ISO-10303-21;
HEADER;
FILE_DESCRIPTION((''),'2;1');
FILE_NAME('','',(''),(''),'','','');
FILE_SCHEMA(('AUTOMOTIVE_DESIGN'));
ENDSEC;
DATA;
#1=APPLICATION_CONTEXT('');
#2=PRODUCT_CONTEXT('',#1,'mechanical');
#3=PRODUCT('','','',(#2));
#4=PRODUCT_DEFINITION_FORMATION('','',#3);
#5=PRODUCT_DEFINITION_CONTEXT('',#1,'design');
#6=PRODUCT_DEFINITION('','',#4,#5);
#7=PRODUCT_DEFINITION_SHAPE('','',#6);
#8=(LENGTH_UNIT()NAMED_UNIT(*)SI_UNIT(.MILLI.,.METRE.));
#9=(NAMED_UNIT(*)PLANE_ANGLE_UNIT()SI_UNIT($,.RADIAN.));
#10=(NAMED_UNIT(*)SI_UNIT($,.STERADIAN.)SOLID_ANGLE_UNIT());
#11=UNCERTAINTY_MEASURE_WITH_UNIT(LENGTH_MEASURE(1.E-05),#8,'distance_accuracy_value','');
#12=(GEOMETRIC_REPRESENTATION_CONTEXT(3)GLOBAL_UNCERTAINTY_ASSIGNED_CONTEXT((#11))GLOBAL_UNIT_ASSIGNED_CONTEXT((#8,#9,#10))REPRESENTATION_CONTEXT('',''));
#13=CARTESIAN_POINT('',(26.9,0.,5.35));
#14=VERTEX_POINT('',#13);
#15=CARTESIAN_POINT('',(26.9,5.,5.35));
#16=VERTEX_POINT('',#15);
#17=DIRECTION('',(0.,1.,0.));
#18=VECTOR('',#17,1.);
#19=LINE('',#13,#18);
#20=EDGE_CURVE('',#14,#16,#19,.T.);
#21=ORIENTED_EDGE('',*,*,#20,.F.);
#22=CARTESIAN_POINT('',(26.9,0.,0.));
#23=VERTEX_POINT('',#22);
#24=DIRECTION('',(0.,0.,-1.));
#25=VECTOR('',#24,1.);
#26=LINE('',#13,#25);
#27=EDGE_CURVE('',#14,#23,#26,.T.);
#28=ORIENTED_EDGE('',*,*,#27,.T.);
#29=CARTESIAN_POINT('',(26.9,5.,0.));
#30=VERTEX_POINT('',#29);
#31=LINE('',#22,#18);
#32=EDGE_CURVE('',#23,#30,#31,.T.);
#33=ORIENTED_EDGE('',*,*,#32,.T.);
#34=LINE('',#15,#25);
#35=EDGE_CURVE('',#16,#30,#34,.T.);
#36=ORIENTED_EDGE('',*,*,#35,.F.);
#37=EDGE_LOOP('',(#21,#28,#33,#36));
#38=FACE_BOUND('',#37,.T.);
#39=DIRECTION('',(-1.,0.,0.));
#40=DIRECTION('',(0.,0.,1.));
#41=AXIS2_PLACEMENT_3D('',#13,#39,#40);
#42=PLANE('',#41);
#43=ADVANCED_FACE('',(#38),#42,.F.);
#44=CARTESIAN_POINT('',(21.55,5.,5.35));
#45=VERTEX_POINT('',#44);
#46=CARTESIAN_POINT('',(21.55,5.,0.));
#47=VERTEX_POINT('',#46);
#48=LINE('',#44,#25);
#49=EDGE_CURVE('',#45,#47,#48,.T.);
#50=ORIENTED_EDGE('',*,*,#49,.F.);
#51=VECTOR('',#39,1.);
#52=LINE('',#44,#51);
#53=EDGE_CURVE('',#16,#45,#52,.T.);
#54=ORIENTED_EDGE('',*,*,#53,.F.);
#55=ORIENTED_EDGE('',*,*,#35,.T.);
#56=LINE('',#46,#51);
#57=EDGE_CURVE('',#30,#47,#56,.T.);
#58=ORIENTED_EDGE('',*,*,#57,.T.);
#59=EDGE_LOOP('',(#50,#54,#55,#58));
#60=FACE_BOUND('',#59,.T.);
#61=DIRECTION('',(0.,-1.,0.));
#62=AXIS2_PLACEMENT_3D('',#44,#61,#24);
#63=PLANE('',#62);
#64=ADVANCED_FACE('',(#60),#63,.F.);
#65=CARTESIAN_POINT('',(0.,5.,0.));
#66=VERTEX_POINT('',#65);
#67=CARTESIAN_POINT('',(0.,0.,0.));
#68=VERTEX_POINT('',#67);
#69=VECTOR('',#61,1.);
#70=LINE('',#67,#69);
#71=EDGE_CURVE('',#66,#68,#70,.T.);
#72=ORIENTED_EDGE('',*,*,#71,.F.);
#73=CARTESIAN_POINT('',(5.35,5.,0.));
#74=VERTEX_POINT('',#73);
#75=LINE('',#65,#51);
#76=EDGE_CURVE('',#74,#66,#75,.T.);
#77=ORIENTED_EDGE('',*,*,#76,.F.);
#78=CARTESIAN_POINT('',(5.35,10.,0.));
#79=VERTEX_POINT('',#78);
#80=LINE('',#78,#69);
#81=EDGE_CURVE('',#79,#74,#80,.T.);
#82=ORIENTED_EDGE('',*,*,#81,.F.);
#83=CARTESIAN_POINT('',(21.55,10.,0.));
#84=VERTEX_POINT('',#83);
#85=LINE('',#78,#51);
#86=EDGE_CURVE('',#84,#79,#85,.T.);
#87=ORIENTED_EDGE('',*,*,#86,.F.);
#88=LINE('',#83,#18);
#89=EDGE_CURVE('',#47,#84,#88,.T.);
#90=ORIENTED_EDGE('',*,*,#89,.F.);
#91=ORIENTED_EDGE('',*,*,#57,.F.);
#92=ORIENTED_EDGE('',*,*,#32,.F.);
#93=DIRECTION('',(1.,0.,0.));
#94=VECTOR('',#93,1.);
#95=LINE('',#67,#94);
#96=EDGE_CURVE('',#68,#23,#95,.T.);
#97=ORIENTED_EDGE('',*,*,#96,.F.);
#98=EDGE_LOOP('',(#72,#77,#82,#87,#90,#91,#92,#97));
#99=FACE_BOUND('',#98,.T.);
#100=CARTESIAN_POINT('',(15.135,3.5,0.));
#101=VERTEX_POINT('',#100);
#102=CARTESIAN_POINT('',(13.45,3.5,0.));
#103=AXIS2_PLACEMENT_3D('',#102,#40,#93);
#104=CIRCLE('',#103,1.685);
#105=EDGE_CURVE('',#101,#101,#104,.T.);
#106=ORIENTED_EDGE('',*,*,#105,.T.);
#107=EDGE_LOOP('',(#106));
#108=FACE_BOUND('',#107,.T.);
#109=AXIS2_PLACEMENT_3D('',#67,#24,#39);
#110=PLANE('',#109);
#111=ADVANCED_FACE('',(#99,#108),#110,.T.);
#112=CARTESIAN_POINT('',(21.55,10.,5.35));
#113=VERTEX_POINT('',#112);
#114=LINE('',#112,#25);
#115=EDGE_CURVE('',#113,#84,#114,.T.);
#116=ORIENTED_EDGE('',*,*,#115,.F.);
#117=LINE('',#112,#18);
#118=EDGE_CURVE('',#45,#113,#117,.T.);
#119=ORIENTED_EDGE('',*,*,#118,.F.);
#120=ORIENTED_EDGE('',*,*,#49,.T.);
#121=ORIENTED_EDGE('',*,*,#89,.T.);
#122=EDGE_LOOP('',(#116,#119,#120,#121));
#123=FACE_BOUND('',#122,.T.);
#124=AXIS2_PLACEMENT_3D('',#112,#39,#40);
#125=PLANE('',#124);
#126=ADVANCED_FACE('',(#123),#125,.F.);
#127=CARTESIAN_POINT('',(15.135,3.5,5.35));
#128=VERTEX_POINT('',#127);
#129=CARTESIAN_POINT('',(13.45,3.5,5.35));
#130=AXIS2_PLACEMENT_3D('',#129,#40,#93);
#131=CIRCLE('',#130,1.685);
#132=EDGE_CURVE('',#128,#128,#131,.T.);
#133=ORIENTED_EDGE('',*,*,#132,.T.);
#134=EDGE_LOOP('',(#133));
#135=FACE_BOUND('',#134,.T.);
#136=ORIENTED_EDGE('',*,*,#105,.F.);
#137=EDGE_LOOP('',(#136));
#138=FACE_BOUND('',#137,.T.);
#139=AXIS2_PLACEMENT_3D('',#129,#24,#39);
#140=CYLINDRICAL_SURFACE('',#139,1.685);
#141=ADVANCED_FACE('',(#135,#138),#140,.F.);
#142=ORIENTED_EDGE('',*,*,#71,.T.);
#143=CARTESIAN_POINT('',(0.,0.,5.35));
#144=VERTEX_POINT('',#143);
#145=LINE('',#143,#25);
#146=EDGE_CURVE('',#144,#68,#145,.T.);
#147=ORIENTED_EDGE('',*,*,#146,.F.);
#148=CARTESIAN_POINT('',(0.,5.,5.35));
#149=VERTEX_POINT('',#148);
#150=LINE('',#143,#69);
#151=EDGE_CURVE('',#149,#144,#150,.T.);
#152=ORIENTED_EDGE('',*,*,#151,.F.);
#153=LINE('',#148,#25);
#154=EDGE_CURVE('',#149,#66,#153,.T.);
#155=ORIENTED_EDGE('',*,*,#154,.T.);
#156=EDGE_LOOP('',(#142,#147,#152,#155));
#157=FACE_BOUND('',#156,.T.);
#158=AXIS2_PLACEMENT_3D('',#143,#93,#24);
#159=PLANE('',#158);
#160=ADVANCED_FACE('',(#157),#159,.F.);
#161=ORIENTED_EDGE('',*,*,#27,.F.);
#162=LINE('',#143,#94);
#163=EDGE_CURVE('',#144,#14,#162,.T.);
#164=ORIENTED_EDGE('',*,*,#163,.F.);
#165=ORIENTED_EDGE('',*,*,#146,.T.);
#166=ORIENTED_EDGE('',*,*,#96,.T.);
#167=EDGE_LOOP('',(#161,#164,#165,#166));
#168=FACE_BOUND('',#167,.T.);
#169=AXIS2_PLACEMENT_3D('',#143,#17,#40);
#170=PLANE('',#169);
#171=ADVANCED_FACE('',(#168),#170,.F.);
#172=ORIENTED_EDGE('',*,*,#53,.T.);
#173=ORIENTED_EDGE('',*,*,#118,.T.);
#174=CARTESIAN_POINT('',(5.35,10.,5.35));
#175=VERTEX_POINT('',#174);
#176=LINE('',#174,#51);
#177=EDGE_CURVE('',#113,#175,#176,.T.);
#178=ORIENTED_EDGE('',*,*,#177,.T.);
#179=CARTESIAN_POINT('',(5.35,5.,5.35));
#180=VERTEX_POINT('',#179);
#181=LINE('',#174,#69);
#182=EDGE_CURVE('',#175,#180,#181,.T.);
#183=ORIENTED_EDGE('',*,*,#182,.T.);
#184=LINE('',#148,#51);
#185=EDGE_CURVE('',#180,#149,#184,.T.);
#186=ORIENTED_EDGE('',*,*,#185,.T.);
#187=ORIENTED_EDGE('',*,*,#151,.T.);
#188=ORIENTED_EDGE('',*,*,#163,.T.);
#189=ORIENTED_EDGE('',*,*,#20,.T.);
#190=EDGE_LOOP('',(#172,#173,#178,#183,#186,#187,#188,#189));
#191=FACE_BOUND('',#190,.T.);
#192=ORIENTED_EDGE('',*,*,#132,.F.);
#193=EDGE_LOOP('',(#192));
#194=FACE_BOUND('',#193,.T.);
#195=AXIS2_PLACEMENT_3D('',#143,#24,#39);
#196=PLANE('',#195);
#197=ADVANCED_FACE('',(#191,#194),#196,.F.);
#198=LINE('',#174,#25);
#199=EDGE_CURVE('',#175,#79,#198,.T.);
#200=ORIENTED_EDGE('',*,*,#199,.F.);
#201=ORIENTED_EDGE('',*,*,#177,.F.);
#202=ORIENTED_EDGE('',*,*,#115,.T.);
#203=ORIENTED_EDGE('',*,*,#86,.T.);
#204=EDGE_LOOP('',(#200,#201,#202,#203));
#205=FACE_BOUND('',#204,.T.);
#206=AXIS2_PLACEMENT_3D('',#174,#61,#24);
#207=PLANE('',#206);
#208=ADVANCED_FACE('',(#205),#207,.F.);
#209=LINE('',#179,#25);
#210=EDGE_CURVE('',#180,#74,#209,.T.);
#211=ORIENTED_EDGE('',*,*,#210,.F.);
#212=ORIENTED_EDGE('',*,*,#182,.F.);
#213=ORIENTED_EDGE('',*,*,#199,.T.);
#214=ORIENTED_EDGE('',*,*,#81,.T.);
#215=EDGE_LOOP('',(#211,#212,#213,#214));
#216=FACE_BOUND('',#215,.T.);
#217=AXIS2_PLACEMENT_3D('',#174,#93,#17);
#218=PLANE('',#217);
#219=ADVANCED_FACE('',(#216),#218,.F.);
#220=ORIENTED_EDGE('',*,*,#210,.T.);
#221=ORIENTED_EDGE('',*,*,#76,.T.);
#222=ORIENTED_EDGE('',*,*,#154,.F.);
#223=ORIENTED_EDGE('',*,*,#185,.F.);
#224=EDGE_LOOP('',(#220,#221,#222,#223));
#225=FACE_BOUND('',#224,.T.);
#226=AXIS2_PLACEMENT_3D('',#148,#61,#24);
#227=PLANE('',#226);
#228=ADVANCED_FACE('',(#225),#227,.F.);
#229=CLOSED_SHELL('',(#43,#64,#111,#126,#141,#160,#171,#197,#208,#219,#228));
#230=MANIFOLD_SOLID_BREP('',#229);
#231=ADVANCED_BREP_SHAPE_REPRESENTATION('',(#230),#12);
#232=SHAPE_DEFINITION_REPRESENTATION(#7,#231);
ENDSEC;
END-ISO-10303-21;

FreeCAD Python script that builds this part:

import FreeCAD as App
import Part
import Sketcher

doc = App.newDocument("Part")
body = doc.addObject("PartDesign::Body", "Body")

# Sketch on XY plane
sketch1 = doc.addObject("Sketcher::SketchObject", "Sketch")
body.addObject(sketch1)
sketch1.AttachmentSupport = (doc.XY_Plane, [""])
sketch1.MapMode = "FlatFace"
sketch1.addGeometry([
    Part.LineSegment(App.Vector(0, 0, 0), App.Vector(26.9, 0, 0)),  # 0
    Part.LineSegment(App.Vector(26.9, 0, 0), App.Vector(26.9, 5, 0)),  # 1
    Part.LineSegment(App.Vector(26.9, 5, 0), App.Vector(21.55, 5, 0)),  # 2
    Part.LineSegment(App.Vector(21.55, 5, 0), App.Vector(21.55, 10, 0)),  # 3
    Part.LineSegment(App.Vector(21.55, 10, 0), App.Vector(5.35, 10, 0)),  # 4
    Part.LineSegment(App.Vector(5.35, 10, 0), App.Vector(5.35, 5, 0)),  # 5
    Part.LineSegment(App.Vector(5.35, 5, 0), App.Vector(0, 5, 0)),  # 6
    Part.LineSegment(App.Vector(0, 5, 0), App.Vector(0, 0, 0)),  # 7
    Part.Circle(App.Vector(13.45, 3.5, 0), App.Vector(0, 0, 1), 1.685),  # 8
], False)
sketch1.addConstraint([
    Sketcher.Constraint("Coincident", 0, 2, 1, 1),
    Sketcher.Constraint("Coincident", 1, 2, 2, 1),
    Sketcher.Constraint("Coincident", 2, 2, 3, 1),
    Sketcher.Constraint("Coincident", 3, 2, 4, 1),
    Sketcher.Constraint("Coincident", 4, 2, 5, 1),
    Sketcher.Constraint("Coincident", 5, 2, 6, 1),
    Sketcher.Constraint("Coincident", 6, 2, 7, 1),
    Sketcher.Constraint("Coincident", 7, 2, 0, 1),
    Sketcher.Constraint("Horizontal", 0),
    Sketcher.Constraint("Vertical", 1),
    Sketcher.Constraint("Horizontal", 2),
    Sketcher.Constraint("Vertical", 3),
    Sketcher.Constraint("Horizontal", 4),
    Sketcher.Constraint("Vertical", 5),
    Sketcher.Constraint("Horizontal", 6),
    Sketcher.Constraint("Vertical", 7),
    Sketcher.Constraint("Coincident", 7, 2, -1, 1),
    Sketcher.Constraint("Horizontal", 2, 2, 5, 2),
    Sketcher.Constraint("Equal", 2, 6),
    Sketcher.Constraint("Equal", 1, 3),
    Sketcher.Constraint("Diameter", 8, 3.37),
    Sketcher.Constraint("DistanceY", 1, 1, 1, 2, 5.0),
    Sketcher.Constraint("DistanceX", 0, 1, 0, 2, 26.9),
    Sketcher.Constraint("DistanceX", 4, 2, 4, 1, 16.2),
    Sketcher.Constraint("DistanceY", -1, 1, 8, 3, 3.5),
    Sketcher.Constraint("DistanceX", 8, 3, 2, 2, 8.1),
])
pad1 = doc.addObject("PartDesign::Pad", "Pad")
body.addObject(pad1)
pad1.Profile = sketch1
pad1.Length = 5.35

doc.recompute()
